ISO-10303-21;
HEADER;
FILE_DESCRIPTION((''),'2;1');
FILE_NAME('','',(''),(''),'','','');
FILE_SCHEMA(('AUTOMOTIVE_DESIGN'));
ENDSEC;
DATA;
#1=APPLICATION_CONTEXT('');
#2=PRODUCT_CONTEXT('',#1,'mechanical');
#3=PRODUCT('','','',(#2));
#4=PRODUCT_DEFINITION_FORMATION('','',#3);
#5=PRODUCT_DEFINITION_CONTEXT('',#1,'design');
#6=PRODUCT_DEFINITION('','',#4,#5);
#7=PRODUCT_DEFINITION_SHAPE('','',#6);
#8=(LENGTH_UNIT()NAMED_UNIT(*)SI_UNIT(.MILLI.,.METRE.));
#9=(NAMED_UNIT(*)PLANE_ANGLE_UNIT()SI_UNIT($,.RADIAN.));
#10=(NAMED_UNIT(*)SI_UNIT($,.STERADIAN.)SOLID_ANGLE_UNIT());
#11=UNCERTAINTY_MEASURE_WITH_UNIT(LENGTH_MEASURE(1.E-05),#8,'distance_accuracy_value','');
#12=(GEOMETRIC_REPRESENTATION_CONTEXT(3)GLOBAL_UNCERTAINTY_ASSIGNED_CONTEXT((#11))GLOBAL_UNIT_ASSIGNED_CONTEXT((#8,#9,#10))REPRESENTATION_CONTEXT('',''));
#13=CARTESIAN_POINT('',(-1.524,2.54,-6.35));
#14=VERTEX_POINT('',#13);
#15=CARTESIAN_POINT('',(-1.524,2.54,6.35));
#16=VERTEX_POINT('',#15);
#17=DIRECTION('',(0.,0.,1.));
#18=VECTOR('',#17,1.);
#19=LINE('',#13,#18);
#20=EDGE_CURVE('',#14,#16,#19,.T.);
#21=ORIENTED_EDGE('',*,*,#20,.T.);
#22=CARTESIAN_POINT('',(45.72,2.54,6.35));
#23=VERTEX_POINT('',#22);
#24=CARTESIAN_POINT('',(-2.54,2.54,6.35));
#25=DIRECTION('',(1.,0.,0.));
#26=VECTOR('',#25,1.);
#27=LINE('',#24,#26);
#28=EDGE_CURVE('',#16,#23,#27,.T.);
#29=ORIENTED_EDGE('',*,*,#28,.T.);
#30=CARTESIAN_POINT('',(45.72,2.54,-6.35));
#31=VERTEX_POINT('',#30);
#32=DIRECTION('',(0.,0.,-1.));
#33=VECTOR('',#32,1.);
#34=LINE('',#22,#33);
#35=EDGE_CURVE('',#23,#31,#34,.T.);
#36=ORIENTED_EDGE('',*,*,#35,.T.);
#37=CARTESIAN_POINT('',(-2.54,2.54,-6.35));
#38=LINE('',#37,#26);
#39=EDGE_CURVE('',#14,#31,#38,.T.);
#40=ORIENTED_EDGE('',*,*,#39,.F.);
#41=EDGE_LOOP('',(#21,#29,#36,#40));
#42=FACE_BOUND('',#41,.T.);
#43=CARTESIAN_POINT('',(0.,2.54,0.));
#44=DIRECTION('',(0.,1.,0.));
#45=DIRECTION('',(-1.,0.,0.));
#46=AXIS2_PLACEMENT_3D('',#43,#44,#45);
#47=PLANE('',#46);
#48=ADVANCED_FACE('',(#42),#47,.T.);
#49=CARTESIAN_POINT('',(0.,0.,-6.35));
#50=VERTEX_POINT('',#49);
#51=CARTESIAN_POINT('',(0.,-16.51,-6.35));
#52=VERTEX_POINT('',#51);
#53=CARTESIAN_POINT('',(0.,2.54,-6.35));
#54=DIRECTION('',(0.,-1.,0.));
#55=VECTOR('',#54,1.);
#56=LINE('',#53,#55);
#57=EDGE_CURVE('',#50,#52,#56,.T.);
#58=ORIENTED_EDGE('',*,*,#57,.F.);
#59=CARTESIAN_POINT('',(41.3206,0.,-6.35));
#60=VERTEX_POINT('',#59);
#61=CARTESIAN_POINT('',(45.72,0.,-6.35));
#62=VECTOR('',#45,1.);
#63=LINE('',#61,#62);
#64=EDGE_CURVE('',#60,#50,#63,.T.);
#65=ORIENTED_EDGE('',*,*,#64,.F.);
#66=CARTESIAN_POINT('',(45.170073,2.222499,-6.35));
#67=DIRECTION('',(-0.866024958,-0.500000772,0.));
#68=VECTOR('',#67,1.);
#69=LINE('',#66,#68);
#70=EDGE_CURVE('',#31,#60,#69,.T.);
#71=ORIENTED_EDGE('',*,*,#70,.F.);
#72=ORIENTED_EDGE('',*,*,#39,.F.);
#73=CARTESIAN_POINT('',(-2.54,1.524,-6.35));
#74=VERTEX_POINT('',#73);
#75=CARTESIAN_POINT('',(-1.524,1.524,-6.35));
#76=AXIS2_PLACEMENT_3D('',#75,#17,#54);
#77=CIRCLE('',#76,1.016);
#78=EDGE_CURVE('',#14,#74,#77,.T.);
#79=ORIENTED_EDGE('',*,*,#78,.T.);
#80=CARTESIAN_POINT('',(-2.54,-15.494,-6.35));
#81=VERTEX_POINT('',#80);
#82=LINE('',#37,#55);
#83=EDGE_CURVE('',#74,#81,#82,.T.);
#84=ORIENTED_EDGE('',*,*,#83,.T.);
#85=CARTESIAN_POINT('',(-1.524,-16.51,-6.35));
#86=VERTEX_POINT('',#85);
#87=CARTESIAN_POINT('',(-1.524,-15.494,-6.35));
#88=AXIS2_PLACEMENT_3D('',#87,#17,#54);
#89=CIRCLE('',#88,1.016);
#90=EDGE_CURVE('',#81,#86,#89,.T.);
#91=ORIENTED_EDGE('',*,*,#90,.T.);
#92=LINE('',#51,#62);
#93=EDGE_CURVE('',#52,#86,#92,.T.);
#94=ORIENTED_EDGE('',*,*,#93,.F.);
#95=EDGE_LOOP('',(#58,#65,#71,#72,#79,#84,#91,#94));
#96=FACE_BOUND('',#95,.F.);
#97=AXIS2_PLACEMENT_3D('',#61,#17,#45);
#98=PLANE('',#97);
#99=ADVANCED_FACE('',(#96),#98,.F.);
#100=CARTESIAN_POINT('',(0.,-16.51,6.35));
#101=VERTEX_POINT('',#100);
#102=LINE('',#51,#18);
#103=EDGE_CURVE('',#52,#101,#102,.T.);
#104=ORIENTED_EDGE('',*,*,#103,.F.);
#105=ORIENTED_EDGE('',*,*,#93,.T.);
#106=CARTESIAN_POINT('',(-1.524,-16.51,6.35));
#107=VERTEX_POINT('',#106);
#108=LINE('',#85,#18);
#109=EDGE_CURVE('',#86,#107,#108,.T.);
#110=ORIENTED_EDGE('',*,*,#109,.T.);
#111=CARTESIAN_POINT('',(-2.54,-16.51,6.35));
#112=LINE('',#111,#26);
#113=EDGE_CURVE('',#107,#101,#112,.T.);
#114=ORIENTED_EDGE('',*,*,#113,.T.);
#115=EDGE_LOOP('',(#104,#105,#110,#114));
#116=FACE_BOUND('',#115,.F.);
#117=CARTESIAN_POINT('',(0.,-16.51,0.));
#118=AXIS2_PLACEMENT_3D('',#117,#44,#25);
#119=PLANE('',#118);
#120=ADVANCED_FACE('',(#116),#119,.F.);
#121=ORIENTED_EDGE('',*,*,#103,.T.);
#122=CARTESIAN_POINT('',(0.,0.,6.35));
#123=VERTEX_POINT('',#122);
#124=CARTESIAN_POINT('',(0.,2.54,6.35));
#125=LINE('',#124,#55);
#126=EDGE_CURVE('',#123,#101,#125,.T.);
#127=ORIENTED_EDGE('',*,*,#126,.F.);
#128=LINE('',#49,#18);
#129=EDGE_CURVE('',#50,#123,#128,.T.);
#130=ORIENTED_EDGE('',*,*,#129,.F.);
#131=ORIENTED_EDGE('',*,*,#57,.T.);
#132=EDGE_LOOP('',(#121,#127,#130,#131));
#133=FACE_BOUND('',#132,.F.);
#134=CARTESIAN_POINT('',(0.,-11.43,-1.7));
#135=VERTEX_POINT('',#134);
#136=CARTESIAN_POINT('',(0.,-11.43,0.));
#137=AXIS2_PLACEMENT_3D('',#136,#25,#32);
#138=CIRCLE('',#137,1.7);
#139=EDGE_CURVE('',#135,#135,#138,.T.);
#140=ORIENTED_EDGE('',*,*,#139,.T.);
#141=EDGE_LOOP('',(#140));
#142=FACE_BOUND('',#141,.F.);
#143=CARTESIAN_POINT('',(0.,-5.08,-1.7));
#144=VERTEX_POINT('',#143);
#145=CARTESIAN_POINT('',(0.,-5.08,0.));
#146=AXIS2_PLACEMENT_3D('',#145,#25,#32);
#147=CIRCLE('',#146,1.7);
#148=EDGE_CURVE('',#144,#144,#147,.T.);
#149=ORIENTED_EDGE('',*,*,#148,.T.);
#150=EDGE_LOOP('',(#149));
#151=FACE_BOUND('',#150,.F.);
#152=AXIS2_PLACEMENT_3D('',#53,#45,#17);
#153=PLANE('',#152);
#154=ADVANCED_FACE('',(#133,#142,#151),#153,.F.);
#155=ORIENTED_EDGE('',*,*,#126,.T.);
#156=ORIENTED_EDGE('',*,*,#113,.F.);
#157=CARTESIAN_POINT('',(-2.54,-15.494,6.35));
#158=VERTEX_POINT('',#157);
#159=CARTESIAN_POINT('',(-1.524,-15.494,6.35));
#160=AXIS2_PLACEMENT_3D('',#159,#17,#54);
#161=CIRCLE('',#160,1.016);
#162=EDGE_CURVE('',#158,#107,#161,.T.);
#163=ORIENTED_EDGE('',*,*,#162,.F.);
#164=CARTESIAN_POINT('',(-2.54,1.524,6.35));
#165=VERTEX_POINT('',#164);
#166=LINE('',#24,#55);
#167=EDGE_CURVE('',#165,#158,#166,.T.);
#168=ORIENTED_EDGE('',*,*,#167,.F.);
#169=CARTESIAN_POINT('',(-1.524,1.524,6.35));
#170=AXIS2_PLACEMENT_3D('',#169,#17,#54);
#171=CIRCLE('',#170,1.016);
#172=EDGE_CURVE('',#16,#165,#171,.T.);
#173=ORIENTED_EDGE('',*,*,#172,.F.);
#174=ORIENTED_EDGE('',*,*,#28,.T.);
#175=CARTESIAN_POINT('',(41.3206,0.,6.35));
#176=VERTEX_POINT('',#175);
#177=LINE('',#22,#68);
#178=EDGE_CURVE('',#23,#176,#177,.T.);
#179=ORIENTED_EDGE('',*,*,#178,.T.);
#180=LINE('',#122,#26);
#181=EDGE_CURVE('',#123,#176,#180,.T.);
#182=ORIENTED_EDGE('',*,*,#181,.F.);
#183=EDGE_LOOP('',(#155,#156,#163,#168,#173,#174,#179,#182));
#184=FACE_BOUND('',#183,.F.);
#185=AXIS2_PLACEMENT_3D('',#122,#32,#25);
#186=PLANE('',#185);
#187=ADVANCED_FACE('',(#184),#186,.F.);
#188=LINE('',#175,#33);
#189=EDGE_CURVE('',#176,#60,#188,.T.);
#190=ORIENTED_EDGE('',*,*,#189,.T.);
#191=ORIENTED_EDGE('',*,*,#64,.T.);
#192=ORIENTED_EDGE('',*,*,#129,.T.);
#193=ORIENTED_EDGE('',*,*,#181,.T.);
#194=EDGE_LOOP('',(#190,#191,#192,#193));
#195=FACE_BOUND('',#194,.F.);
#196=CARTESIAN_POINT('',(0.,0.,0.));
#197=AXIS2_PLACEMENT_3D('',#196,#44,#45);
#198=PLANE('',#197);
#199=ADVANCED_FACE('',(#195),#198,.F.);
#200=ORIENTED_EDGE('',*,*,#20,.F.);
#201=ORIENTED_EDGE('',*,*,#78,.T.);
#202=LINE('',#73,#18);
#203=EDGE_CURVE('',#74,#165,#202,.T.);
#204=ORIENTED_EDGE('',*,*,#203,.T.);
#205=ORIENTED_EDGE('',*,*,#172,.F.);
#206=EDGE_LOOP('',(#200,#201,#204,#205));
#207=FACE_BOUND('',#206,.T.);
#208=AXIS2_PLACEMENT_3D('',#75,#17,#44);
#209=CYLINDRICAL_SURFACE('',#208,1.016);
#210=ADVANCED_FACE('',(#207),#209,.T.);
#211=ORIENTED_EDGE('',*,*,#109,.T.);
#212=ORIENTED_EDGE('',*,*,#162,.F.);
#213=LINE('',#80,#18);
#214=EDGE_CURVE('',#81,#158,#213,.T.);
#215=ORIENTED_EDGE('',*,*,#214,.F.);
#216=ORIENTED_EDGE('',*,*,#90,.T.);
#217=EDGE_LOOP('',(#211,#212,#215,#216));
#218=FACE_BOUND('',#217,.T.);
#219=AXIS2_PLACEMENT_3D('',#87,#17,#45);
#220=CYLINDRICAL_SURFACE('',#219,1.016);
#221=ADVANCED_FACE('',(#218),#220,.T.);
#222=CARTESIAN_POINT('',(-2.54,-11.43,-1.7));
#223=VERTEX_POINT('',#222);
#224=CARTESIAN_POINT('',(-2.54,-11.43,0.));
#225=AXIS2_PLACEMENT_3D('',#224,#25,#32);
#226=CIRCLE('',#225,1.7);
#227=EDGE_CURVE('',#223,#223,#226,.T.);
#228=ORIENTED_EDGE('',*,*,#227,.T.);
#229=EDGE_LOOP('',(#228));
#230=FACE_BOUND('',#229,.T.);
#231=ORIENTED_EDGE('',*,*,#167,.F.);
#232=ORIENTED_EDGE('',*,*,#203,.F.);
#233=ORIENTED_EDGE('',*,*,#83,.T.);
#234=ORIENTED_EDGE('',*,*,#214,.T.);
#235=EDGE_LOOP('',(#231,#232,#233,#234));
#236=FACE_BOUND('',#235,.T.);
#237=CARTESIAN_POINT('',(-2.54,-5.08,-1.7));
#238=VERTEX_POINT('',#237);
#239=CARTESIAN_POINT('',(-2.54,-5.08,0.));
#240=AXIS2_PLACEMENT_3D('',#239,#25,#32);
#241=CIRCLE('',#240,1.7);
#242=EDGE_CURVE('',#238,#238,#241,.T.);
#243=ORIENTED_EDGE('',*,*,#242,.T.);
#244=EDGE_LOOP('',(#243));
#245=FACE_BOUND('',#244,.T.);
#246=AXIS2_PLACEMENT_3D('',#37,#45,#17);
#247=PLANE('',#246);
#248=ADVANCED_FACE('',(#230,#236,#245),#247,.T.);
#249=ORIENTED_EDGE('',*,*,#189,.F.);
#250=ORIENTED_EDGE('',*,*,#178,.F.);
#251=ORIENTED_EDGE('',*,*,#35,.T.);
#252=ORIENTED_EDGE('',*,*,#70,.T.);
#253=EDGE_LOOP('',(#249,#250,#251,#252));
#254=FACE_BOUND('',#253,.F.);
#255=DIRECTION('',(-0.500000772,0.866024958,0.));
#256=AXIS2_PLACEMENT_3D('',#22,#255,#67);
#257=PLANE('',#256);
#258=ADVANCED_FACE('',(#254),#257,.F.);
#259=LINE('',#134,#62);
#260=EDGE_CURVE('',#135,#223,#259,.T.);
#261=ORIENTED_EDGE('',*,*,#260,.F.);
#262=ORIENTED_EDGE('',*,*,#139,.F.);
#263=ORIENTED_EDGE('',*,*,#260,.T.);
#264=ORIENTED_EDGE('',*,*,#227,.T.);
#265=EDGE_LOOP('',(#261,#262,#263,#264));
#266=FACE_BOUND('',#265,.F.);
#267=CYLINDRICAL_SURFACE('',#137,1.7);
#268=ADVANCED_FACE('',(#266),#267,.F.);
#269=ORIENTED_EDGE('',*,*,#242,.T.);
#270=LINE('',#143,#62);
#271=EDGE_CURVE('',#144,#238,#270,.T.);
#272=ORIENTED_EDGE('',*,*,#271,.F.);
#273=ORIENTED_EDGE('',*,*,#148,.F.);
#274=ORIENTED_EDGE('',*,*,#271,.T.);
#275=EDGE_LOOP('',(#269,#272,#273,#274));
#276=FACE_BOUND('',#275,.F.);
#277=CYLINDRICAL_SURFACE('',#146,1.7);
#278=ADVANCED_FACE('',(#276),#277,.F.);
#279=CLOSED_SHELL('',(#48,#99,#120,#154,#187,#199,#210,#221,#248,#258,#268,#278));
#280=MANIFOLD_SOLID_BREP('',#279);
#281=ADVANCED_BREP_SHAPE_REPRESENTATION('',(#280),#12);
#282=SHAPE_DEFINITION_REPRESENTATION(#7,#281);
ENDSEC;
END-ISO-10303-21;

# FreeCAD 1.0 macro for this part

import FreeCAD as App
import Part
import Sketcher

V = App.Vector
Q = App.Units.Quantity


def edges_at(feature, points):
    """Names of the edges that pass closest to the given points."""
    edges = feature.Shape.Edges
    near = lambda p: min(range(len(edges)), key=lambda i: edges[i].distToShape(Part.Vertex(*p))[0])
    return sorted({f"Edge{near(p) + 1}" for p in points})

doc = App.newDocument("Part")
body = doc.addObject("PartDesign::Body", "Body")

sketch1 = body.newObject("Sketcher::SketchObject", "Sketch")
sketch1.AttachmentSupport = (doc.getObject("XZ_Plane"), [""])
sketch1.MapMode = "FlatFace"
sketch1.addGeometry([
    Part.LineSegment(V(0, -6, 0), V(0, 6, 0)),
    Part.LineSegment(V(0, 6, 0), V(46, 6, 0)),
    Part.LineSegment(V(46, 6, 0), V(46, -6, 0)),
    Part.LineSegment(V(46, -6, 0), V(0, -6, 0)),
], False)
sketch1.addConstraint([
    Sketcher.Constraint("Coincident", 0, 2, 1, 1),
    Sketcher.Constraint("Coincident", 1, 2, 2, 1),
    Sketcher.Constraint("Coincident", 2, 2, 3, 1),
    Sketcher.Constraint("Coincident", 3, 2, 0, 1),
    Sketcher.Constraint("Vertical", 0),
    Sketcher.Constraint("Horizontal", 1),
    Sketcher.Constraint("Vertical", 2),
    Sketcher.Constraint("Horizontal", 3),
    Sketcher.Constraint("Symmetric", 0, 2, 3, 2, -1, 1),
    Sketcher.Constraint("DistanceX", 1, 1, 1, 2, Q("1.8 in")),
    Sketcher.Constraint("DistanceY", 0, 1, 0, 2, Q("0.5 in")),
])
pad1 = body.newObject("PartDesign::Pad", "Pad")
pad1.Profile = sketch1
pad1.Length = Q("0.1 in")
pad1.Reversed = True

sketch2 = body.newObject("Sketcher::SketchObject", "Sketch001")
sketch2.AttachmentSupport = (doc.getObject("XZ_Plane"), [""])
sketch2.MapMode = "FlatFace"
sketch2.AttachmentOffset = App.Placement(V(0, 0, -0.1 * 25.4), App.Rotation())
sketch2.addGeometry([
    Part.LineSegment(V(0, 6.3, 0), V(0, -6.3, 0)),
    Part.LineSegment(V(0, -6.3, 0), V(-2.5, -6.3, 0)),
    Part.LineSegment(V(-2.5, -6.3, 0), V(-2.5, 6.3, 0)),
    Part.LineSegment(V(-2.5, 6.3, 0), V(0, 6.3, 0)),
], False)
sketch2.addConstraint([
    Sketcher.Constraint("Coincident", 0, 2, 1, 1),
    Sketcher.Constraint("Coincident", 1, 2, 2, 1),
    Sketcher.Constraint("Coincident", 2, 2, 3, 1),
    Sketcher.Constraint("Coincident", 3, 2, 0, 1),
    Sketcher.Constraint("Vertical", 0),
    Sketcher.Constraint("Horizontal", 1),
    Sketcher.Constraint("Vertical", 2),
    Sketcher.Constraint("Horizontal", 3),
    Sketcher.Constraint("Symmetric", 0, 2, 3, 2, -1, 1),
    Sketcher.Constraint("DistanceX", 1, 2, 1, 1, Q("0.1 in")),
    Sketcher.Constraint("DistanceY", 0, 2, 0, 1, Q("0.5 in")),
])
pad2 = body.newObject("PartDesign::Pad", "Pad001")
pad2.Profile = sketch2
pad2.Length = Q("0.75 in")

sketch3 = body.newObject("Sketcher::SketchObject", "Sketch002")
sketch3.AttachmentSupport = (doc.getObject("YZ_Plane"), [""])
sketch3.MapMode = "FlatFace"
sketch3.addGeometry([
    Part.Circle(V(-5.1, 0, 0), V(0, 0, 1), 1.7),
    Part.Circle(V(-11.4, 0, 0), V(0, 0, 1), 1.7),
], False)
sketch3.addConstraint([
    Sketcher.Constraint("Equal", 0, 1),
    Sketcher.Constraint("PointOnObject", 0, 3, -1),
    Sketcher.Constraint("PointOnObject", 1, 3, -1),
    Sketcher.Constraint("DistanceX", 0, 3, -1, 1, Q("0.2 in")),
    Sketcher.Constraint("Diameter", 0, Q("3.4 mm")),
    Sketcher.Constraint("DistanceX", 1, 3, 0, 3, Q("0.25 in")),
])
pocket1 = body.newObject("PartDesign::Pocket", "Pocket")
pocket1.Profile = sketch3
pocket1.Type = "ThroughAll"
doc.recompute()

fillet = body.newObject("PartDesign::Fillet", "Fillet")
fillet.Base = (pocket1, edges_at(pocket1, [(-2.54, 2.54, 0), (-2.54, -16.51, 0)]))
fillet.Radius = Q("0.04 in")

sketch4 = body.newObject("Sketcher::SketchObject", "Sketch003")
sketch4.AttachmentSupport = (doc.getObject("XY_Plane"), [""])
sketch4.MapMode = "FlatFace"
sketch4.AttachmentOffset = App.Placement(V(0, 0, 0.25 * 25.4), App.Rotation())
sketch4.addGeometry([
    Part.LineSegment(V(41.3, 0, 0), V(45.7, 0, 0)),
    Part.LineSegment(V(45.7, 0, 0), V(45.7, 2.5, 0)),
    Part.LineSegment(V(45.7, 2.5, 0), V(41.3, 0, 0)),
], False)
sketch4.addConstraint([
    Sketcher.Constraint("Coincident", 0, 2, 1, 1),
    Sketcher.Constraint("Coincident", 1, 2, 2, 1),
    Sketcher.Constraint("Coincident", 2, 2, 0, 1),
    Sketcher.Constraint("Horizontal", 0),
    Sketcher.Constraint("Vertical", 1),
    Sketcher.Constraint("PointOnObject", 0, 2, -1),
    Sketcher.Constraint("Angle", 2, Q("-150 deg")),
    Sketcher.Constraint("DistanceY", 1, 1, 1, 2, Q("0.1 in")),
    Sketcher.Constraint("DistanceX", -1, 1, 0, 2, Q("1.8 in")),
])
pocket2 = body.newObject("PartDesign::Pocket", "Pocket001")
pocket2.Profile = sketch4
pocket2.Type = "ThroughAll"

doc.recompute()
